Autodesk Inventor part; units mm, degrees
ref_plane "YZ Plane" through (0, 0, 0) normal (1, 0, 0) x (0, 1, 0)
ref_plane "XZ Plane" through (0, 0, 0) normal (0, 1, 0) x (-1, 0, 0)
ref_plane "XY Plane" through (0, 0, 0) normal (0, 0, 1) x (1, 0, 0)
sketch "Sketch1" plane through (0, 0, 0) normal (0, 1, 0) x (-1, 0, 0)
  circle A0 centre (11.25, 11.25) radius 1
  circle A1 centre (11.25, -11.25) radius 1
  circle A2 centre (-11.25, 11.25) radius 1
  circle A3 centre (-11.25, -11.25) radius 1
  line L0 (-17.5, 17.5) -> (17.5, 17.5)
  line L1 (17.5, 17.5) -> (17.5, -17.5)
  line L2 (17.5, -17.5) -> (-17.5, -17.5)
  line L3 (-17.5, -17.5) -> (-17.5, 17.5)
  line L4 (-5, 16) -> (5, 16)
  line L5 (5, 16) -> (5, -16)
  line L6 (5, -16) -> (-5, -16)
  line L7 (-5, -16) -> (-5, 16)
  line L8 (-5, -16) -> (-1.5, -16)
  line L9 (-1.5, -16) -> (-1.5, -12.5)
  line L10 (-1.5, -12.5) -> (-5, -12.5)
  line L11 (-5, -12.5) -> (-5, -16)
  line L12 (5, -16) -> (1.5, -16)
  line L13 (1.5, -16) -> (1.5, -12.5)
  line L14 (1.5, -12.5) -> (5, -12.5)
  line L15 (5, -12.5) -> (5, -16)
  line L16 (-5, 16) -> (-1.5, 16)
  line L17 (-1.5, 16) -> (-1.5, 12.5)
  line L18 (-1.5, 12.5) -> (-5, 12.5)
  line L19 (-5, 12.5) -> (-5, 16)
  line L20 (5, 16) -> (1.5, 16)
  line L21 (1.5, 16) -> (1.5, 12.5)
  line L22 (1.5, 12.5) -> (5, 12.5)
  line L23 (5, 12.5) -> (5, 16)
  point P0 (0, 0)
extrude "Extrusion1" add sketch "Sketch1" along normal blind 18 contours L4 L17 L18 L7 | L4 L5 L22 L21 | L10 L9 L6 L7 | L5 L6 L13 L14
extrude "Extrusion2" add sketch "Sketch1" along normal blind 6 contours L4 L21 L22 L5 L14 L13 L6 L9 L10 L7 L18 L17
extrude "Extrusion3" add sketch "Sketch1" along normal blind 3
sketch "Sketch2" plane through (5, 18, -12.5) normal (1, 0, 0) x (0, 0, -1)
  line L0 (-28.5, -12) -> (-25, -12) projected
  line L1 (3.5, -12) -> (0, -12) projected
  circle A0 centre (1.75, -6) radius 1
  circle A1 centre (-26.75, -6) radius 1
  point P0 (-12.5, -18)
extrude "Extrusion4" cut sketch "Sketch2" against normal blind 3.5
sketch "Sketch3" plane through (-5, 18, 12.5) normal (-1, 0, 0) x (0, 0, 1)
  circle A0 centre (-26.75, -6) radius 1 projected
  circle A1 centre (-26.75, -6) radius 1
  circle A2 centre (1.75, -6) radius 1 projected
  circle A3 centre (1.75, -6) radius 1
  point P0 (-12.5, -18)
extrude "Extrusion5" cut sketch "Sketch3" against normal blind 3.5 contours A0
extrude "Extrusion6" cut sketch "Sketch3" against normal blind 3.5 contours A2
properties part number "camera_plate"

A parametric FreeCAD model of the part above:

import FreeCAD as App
import Part
import Sketcher


def add_polygon(sketch, points):
    """Adds a closed chain of lines whose ends are joined by coincident constraints."""
    first, n = sketch.GeometryCount, len(points)
    for a, b in zip(points, points[1:] + points[:1]):
        sketch.addGeometry(Part.LineSegment(App.Vector(*a, 0), App.Vector(*b, 0)), False)
    for i in range(n):
        sketch.addConstraint(Sketcher.Constraint("Coincident", first + i, 2, first + (i + 1) % n, 1))

doc = App.newDocument("Part")
body = doc.addObject("PartDesign::Body", "Body")
body.AllowCompound = True

sketch1 = doc.addObject("Sketcher::SketchObject", "Sketch")
body.addObject(sketch1)
sketch1.AttachmentSupport = (doc.XZ_Plane, [""])
sketch1.MapMode = "FlatFace"
add_polygon(sketch1, [(1.5, 16), (5, 16), (5, 12.5), (1.5, 12.5)])
add_polygon(sketch1, [(-5, 16), (-1.5, 16), (-1.5, 12.5), (-5, 12.5)])
add_polygon(sketch1, [(1.5, -12.5), (5, -12.5), (5, -16), (1.5, -16)])
add_polygon(sketch1, [(-5, -16), (-5, -12.5), (-1.5, -12.5), (-1.5, -16)])
sketch1.addConstraint(Sketcher.Constraint("Horizontal", 0))
sketch1.addConstraint(Sketcher.Constraint("Vertical", 1))
sketch1.addConstraint(Sketcher.Constraint("Horizontal", 2))
sketch1.addConstraint(Sketcher.Constraint("Vertical", 3))
sketch1.addConstraint(Sketcher.Constraint("Horizontal", 4))
sketch1.addConstraint(Sketcher.Constraint("Vertical", 5))
sketch1.addConstraint(Sketcher.Constraint("Horizontal", 6))
sketch1.addConstraint(Sketcher.Constraint("Vertical", 7))
sketch1.addConstraint(Sketcher.Constraint("Horizontal", 8))
sketch1.addConstraint(Sketcher.Constraint("Vertical", 9))
sketch1.addConstraint(Sketcher.Constraint("Horizontal", 10))
sketch1.addConstraint(Sketcher.Constraint("Vertical", 11))
sketch1.addConstraint(Sketcher.Constraint("Vertical", 12))
sketch1.addConstraint(Sketcher.Constraint("Horizontal", 13))
sketch1.addConstraint(Sketcher.Constraint("Vertical", 14))
sketch1.addConstraint(Sketcher.Constraint("Horizontal", 15))
sketch1.addConstraint(Sketcher.Constraint("Symmetric", 6, 2, 8, 2, -1, 1))
sketch1.addConstraint(Sketcher.Constraint("Symmetric", 4, 2, 10, 2, -1, 1))
sketch1.addConstraint(Sketcher.Constraint("Symmetric", 1, 2, 12, 2, -1, 1))
sketch1.addConstraint(Sketcher.Constraint("Symmetric", 3, 2, 14, 2, -1, 1))
sketch1.addConstraint(Sketcher.Constraint("Symmetric", 3, 2, 4, 2, -2))
sketch1.addConstraint(Sketcher.Constraint("Symmetric", 1, 2, 6, 2, -2))
sketch1.addConstraint(Sketcher.Constraint("Equal", 15, 1))
sketch1.addConstraint(Sketcher.Constraint("DistanceX", 0, 1, 0, 2, 3.5))
sketch1.addConstraint(Sketcher.Constraint("DistanceX", -1, 1, 0, 2, 5.0))
sketch1.addConstraint(Sketcher.Constraint("DistanceY", -1, 1, 0, 2, 16.0))
pad1 = doc.addObject("PartDesign::Pad", "Pad")
body.addObject(pad1)
pad1.Profile = sketch1
pad1.Length = 18
pad1.Reversed = True

sketch2 = doc.addObject("Sketcher::SketchObject", "Sketch001")
body.addObject(sketch2)
sketch2.AttachmentSupport = (doc.XZ_Plane, [""])
sketch2.MapMode = "FlatFace"
add_polygon(sketch2, [(-1.5, 16), (1.5, 16), (1.5, 12.5), (5, 12.5), (5, -12.5), (1.5, -12.5), (1.5, -16), (-1.5, -16), (-1.5, -12.5), (-5, -12.5), (-5, 12.5), (-1.5, 12.5)])
sketch2.addConstraint(Sketcher.Constraint("Horizontal", 0))
sketch2.addConstraint(Sketcher.Constraint("Vertical", 1))
sketch2.addConstraint(Sketcher.Constraint("Horizontal", 2))
sketch2.addConstraint(Sketcher.Constraint("Vertical", 3))
sketch2.addConstraint(Sketcher.Constraint("Horizontal", 4))
sketch2.addConstraint(Sketcher.Constraint("Vertical", 5))
sketch2.addConstraint(Sketcher.Constraint("Horizontal", 6))
sketch2.addConstraint(Sketcher.Constraint("Vertical", 7))
sketch2.addConstraint(Sketcher.Constraint("Horizontal", 8))
sketch2.addConstraint(Sketcher.Constraint("Vertical", 9))
sketch2.addConstraint(Sketcher.Constraint("Horizontal", 10))
sketch2.addConstraint(Sketcher.Constraint("Vertical", 11))
sketch2.addConstraint(Sketcher.Constraint("Symmetric", 0, 2, 6, 2, -1, 1))
sketch2.addConstraint(Sketcher.Constraint("Symmetric", 2, 2, 8, 2, -1, 1))
sketch2.addConstraint(Sketcher.Constraint("Symmetric", 4, 2, 10, 2, -1, 1))
sketch2.addConstraint(Sketcher.Constraint("Symmetric", 4, 2, 7, 2, -2))
sketch2.addConstraint(Sketcher.Constraint("Equal", 10, 1))
sketch2.addConstraint(Sketcher.Constraint("DistanceX", 0, 1, 0, 2, 3.0))
sketch2.addConstraint(Sketcher.Constraint("DistanceY", 3, 2, 3, 1, 25.0))
sketch2.addConstraint(Sketcher.Constraint("DistanceX", 2, 1, 2, 2, 3.5))
pad2 = doc.addObject("PartDesign::Pad", "Pad001")
body.addObject(pad2)
pad2.Profile = sketch2
pad2.Length = 6
pad2.Reversed = True

sketch3 = doc.addObject("Sketcher::SketchObject", "Sketch002")
body.addObject(sketch3)
sketch3.AttachmentSupport = (doc.XZ_Plane, [""])
sketch3.MapMode = "FlatFace"
add_polygon(sketch3, [(-17.5, 17.5), (17.5, 17.5), (17.5, -17.5), (-17.5, -17.5)])
sketch3.addGeometry(Part.Circle(App.Vector(11.2, -11.2, 0), App.Vector(0, 0, 1), 1), False)
sketch3.addGeometry(Part.Circle(App.Vector(-11.2, -11.2, 0), App.Vector(0, 0, 1), 1), False)
sketch3.addGeometry(Part.Circle(App.Vector(11.2, 11.2, 0), App.Vector(0, 0, 1), 1), False)
add_polygon(sketch3, [(5, -16), (5, 16), (-5, 16), (-5, -16)])
sketch3.addGeometry(Part.Circle(App.Vector(-11.2, 11.2, 0), App.Vector(0, 0, 1), 1), False)
sketch3.addConstraint(Sketcher.Constraint("Horizontal", 0))
sketch3.addConstraint(Sketcher.Constraint("Vertical", 1))
sketch3.addConstraint(Sketcher.Constraint("Horizontal", 2))
sketch3.addConstraint(Sketcher.Constraint("Vertical", 3))
sketch3.addConstraint(Sketcher.Constraint("Vertical", 7))
sketch3.addConstraint(Sketcher.Constraint("Horizontal", 8))
sketch3.addConstraint(Sketcher.Constraint("Vertical", 9))
sketch3.addConstraint(Sketcher.Constraint("Horizontal", 10))
sketch3.addConstraint(Sketcher.Constraint("Equal", 4, 5))
sketch3.addConstraint(Sketcher.Constraint("Equal", 5, 6))
sketch3.addConstraint(Sketcher.Constraint("Equal", 6, 11))
sketch3.addConstraint(Sketcher.Constraint("Symmetric", 5, 3, 6, 3, -1, 1))
sketch3.addConstraint(Sketcher.Constraint("Symmetric", 4, 3, 11, 3, -1, 1))
sketch3.addConstraint(Sketcher.Constraint("Symmetric", 0, 2, 2, 2, -1, 1))
sketch3.addConstraint(Sketcher.Constraint("Symmetric", 7, 2, 9, 2, -1, 1))
sketch3.addConstraint(Sketcher.Constraint("Symmetric", 4, 3, 5, 3, -2))
sketch3.addConstraint(Sketcher.Constraint("Equal", 2, 1))
sketch3.addConstraint(Sketcher.Constraint("Diameter", 4, 2.0))
sketch3.addConstraint(Sketcher.Constraint("DistanceX", 0, 1, 0, 2, 35.0))
sketch3.addConstraint(Sketcher.Constraint("DistanceX", 8, 2, 8, 1, 10.0))
sketch3.addConstraint(Sketcher.Constraint("DistanceY", 7, 1, 7, 2, 32.0))
sketch3.addConstraint(Sketcher.Constraint("DistanceX", 5, 3, 4, 3, 22.5))
sketch3.addConstraint(Sketcher.Constraint("DistanceY", 4, 3, 6, 3, 22.5))
pad3 = doc.addObject("PartDesign::Pad", "Pad002")
body.addObject(pad3)
pad3.Profile = sketch3
pad3.Length = 3
pad3.Reversed = True

sketch4 = doc.addObject("Sketcher::SketchObject", "Sketch003")
body.addObject(sketch4)
sketch4.AttachmentSupport = (doc.YZ_Plane, [""])
sketch4.MapMode = "FlatFace"
sketch4.AttachmentOffset = App.Placement(App.Vector(0, 0, 5), App.Rotation())
sketch4.addGeometry(Part.Circle(App.Vector(12, -14.2, 0), App.Vector(0, 0, 1), 1), False)
sketch4.addGeometry(Part.Circle(App.Vector(12, 14.2, 0), App.Vector(0, 0, 1), 1), False)
sketch4.addConstraint(Sketcher.Constraint("Equal", 0, 1))
sketch4.addConstraint(Sketcher.Constraint("Symmetric", 0, 3, 1, 3, -1))
sketch4.addConstraint(Sketcher.Constraint("Diameter", 0, 2.0))
sketch4.addConstraint(Sketcher.Constraint("DistanceX", -1, 1, 0, 3, 12.0))
sketch4.addConstraint(Sketcher.Constraint("DistanceY", 0, 3, 1, 3, 28.5))
pocket1 = doc.addObject("PartDesign::Pocket", "Pocket")
body.addObject(pocket1)
pocket1.Profile = sketch4
pocket1.Length = 3.5

sketch5 = doc.addObject("Sketcher::SketchObject", "Sketch004")
body.addObject(sketch5)
sketch5.AttachmentSupport = (doc.YZ_Plane, [""])
sketch5.MapMode = "FlatFace"
sketch5.AttachmentOffset = App.Placement(App.Vector(0, 0, -5), App.Rotation())
sketch5.addGeometry(Part.Circle(App.Vector(12, -14.2, 0), App.Vector(0, 0, 1), 1), False)
sketch5.addConstraint(Sketcher.Constraint("Diameter", 0, 2.0))
sketch5.addConstraint(Sketcher.Constraint("DistanceX", -1, 1, 0, 3, 12.0))
sketch5.addConstraint(Sketcher.Constraint("DistanceY", 0, 3, -1, 1, 14.25))
pocket2 = doc.addObject("PartDesign::Pocket", "Pocket001")
body.addObject(pocket2)
pocket2.Profile = sketch5
pocket2.Length = 3.5
pocket2.Reversed = True

sketch6 = doc.addObject("Sketcher::SketchObject", "Sketch005")
body.addObject(sketch6)
sketch6.AttachmentSupport = (doc.YZ_Plane, [""])
sketch6.MapMode = "FlatFace"
sketch6.AttachmentOffset = App.Placement(App.Vector(0, 0, -5), App.Rotation())
sketch6.addGeometry(Part.Circle(App.Vector(12, 14.2, 0), App.Vector(0, 0, 1), 1), False)
sketch6.addConstraint(Sketcher.Constraint("Diameter", 0, 2.0))
sketch6.addConstraint(Sketcher.Constraint("DistanceX", -1, 1, 0, 3, 12.0))
sketch6.addConstraint(Sketcher.Constraint("DistanceY", -1, 1, 0, 3, 14.25))
pocket3 = doc.addObject("PartDesign::Pocket", "Pocket002")
body.addObject(pocket3)
pocket3.Profile = sketch6
pocket3.Length = 3.5
pocket3.Reversed = True

doc.recompute()
